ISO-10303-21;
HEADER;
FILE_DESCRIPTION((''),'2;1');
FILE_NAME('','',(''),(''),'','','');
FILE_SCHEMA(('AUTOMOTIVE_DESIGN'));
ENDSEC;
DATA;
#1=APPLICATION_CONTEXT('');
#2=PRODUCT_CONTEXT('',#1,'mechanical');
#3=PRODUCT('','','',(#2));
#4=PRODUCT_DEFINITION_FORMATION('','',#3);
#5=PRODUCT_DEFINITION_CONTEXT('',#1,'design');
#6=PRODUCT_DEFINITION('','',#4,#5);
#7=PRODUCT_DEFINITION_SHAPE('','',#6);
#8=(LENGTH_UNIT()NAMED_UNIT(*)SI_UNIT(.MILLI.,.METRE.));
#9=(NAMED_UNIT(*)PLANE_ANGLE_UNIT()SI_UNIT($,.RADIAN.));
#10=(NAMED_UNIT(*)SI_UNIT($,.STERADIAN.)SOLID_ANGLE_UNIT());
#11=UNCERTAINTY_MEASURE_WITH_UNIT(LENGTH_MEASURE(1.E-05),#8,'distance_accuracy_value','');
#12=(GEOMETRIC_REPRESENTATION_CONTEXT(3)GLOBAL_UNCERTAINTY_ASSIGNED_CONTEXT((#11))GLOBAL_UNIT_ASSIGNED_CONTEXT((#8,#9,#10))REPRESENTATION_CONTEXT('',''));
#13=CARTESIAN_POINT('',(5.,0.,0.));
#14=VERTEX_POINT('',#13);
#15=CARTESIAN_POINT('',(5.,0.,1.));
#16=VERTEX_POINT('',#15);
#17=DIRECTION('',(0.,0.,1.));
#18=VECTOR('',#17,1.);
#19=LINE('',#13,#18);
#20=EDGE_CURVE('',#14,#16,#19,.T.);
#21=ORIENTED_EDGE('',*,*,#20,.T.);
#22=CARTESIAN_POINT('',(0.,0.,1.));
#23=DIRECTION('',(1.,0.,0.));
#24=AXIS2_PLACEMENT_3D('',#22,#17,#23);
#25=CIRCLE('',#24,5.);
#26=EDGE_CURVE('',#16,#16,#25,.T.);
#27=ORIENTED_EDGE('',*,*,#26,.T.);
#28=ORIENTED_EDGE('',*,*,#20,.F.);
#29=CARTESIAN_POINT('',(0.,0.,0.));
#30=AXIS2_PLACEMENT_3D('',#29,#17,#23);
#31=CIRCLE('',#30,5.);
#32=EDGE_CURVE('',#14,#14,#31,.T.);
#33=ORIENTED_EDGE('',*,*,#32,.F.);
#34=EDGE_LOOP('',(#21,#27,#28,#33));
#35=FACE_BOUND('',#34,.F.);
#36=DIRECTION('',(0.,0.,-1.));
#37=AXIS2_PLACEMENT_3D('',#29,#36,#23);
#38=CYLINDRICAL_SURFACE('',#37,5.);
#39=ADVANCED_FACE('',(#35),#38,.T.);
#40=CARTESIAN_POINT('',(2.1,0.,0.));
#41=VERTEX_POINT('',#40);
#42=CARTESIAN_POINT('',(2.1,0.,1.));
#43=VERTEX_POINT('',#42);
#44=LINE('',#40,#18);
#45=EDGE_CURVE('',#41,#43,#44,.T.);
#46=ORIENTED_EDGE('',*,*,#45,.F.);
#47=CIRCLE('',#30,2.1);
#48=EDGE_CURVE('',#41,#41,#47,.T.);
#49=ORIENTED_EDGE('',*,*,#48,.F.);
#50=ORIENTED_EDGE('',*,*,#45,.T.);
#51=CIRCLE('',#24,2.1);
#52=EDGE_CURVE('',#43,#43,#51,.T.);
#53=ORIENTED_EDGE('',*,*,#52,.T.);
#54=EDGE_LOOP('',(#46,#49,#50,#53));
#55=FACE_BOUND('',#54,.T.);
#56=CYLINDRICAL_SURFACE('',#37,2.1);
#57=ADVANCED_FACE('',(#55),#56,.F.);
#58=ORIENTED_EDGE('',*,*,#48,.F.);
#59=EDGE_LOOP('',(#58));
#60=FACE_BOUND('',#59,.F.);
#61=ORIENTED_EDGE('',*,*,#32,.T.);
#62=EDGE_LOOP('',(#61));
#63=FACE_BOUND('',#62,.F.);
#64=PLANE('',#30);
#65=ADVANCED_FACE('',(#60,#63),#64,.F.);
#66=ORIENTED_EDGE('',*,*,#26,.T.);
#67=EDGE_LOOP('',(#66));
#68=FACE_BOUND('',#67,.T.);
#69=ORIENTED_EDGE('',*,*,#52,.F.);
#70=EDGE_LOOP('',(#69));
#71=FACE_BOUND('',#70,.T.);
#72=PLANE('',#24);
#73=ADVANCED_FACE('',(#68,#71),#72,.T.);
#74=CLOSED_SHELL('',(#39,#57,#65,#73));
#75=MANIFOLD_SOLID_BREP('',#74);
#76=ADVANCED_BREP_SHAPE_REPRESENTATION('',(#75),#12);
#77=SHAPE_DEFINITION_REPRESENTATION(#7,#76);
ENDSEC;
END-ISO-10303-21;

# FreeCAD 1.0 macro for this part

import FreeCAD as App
import Part
import Sketcher

V = App.Vector
Q = App.Units.Quantity

doc = App.newDocument("Part")
params = doc.addObject("Spreadsheet::Sheet", "Params")
for row, (alias, value) in enumerate([
    ("sketch1_diameter", "10 mm"),
    ("sketch1_diameter2", "4.2 mm"),
    ("pad1_length", "1 mm"),
], start=1):
    params.set(f"A{row}", alias)
    params.set(f"B{row}", "=" + value)
    params.setAlias(f"B{row}", alias)

body = doc.addObject("PartDesign::Body", "Body")

sketch1 = doc.addObject("Sketcher::SketchObject", "Sketch")
body.addObject(sketch1)
sketch1.AttachmentSupport = (doc.XY_Plane, [""])
sketch1.MapMode = "FlatFace"
sketch1.addGeometry(Part.Circle(V(0, 0, 0), V(0, 0, 1), 5), False)
sketch1.addGeometry(Part.Circle(V(0, 0, 0), V(0, 0, 1), 2.1), False)
sketch1.addConstraint(Sketcher.Constraint("Coincident", 0, 3, -1, 1))
sketch1.addConstraint(Sketcher.Constraint("Coincident", 1, 3, -1, 1))
sketch1.addConstraint(Sketcher.Constraint("Diameter", 0, Q("10 mm")))
sketch1.addConstraint(Sketcher.Constraint("Diameter", 1, Q("4.2 mm")))
sketch1.setExpression("Constraints[2]", "Params.sketch1_diameter")
sketch1.setExpression("Constraints[3]", "Params.sketch1_diameter2")
pad1 = doc.addObject("PartDesign::Pad", "Pad")
body.addObject(pad1)
pad1.Profile = sketch1
pad1.setExpression("Length", "Params.pad1_length")

doc.recompute()
